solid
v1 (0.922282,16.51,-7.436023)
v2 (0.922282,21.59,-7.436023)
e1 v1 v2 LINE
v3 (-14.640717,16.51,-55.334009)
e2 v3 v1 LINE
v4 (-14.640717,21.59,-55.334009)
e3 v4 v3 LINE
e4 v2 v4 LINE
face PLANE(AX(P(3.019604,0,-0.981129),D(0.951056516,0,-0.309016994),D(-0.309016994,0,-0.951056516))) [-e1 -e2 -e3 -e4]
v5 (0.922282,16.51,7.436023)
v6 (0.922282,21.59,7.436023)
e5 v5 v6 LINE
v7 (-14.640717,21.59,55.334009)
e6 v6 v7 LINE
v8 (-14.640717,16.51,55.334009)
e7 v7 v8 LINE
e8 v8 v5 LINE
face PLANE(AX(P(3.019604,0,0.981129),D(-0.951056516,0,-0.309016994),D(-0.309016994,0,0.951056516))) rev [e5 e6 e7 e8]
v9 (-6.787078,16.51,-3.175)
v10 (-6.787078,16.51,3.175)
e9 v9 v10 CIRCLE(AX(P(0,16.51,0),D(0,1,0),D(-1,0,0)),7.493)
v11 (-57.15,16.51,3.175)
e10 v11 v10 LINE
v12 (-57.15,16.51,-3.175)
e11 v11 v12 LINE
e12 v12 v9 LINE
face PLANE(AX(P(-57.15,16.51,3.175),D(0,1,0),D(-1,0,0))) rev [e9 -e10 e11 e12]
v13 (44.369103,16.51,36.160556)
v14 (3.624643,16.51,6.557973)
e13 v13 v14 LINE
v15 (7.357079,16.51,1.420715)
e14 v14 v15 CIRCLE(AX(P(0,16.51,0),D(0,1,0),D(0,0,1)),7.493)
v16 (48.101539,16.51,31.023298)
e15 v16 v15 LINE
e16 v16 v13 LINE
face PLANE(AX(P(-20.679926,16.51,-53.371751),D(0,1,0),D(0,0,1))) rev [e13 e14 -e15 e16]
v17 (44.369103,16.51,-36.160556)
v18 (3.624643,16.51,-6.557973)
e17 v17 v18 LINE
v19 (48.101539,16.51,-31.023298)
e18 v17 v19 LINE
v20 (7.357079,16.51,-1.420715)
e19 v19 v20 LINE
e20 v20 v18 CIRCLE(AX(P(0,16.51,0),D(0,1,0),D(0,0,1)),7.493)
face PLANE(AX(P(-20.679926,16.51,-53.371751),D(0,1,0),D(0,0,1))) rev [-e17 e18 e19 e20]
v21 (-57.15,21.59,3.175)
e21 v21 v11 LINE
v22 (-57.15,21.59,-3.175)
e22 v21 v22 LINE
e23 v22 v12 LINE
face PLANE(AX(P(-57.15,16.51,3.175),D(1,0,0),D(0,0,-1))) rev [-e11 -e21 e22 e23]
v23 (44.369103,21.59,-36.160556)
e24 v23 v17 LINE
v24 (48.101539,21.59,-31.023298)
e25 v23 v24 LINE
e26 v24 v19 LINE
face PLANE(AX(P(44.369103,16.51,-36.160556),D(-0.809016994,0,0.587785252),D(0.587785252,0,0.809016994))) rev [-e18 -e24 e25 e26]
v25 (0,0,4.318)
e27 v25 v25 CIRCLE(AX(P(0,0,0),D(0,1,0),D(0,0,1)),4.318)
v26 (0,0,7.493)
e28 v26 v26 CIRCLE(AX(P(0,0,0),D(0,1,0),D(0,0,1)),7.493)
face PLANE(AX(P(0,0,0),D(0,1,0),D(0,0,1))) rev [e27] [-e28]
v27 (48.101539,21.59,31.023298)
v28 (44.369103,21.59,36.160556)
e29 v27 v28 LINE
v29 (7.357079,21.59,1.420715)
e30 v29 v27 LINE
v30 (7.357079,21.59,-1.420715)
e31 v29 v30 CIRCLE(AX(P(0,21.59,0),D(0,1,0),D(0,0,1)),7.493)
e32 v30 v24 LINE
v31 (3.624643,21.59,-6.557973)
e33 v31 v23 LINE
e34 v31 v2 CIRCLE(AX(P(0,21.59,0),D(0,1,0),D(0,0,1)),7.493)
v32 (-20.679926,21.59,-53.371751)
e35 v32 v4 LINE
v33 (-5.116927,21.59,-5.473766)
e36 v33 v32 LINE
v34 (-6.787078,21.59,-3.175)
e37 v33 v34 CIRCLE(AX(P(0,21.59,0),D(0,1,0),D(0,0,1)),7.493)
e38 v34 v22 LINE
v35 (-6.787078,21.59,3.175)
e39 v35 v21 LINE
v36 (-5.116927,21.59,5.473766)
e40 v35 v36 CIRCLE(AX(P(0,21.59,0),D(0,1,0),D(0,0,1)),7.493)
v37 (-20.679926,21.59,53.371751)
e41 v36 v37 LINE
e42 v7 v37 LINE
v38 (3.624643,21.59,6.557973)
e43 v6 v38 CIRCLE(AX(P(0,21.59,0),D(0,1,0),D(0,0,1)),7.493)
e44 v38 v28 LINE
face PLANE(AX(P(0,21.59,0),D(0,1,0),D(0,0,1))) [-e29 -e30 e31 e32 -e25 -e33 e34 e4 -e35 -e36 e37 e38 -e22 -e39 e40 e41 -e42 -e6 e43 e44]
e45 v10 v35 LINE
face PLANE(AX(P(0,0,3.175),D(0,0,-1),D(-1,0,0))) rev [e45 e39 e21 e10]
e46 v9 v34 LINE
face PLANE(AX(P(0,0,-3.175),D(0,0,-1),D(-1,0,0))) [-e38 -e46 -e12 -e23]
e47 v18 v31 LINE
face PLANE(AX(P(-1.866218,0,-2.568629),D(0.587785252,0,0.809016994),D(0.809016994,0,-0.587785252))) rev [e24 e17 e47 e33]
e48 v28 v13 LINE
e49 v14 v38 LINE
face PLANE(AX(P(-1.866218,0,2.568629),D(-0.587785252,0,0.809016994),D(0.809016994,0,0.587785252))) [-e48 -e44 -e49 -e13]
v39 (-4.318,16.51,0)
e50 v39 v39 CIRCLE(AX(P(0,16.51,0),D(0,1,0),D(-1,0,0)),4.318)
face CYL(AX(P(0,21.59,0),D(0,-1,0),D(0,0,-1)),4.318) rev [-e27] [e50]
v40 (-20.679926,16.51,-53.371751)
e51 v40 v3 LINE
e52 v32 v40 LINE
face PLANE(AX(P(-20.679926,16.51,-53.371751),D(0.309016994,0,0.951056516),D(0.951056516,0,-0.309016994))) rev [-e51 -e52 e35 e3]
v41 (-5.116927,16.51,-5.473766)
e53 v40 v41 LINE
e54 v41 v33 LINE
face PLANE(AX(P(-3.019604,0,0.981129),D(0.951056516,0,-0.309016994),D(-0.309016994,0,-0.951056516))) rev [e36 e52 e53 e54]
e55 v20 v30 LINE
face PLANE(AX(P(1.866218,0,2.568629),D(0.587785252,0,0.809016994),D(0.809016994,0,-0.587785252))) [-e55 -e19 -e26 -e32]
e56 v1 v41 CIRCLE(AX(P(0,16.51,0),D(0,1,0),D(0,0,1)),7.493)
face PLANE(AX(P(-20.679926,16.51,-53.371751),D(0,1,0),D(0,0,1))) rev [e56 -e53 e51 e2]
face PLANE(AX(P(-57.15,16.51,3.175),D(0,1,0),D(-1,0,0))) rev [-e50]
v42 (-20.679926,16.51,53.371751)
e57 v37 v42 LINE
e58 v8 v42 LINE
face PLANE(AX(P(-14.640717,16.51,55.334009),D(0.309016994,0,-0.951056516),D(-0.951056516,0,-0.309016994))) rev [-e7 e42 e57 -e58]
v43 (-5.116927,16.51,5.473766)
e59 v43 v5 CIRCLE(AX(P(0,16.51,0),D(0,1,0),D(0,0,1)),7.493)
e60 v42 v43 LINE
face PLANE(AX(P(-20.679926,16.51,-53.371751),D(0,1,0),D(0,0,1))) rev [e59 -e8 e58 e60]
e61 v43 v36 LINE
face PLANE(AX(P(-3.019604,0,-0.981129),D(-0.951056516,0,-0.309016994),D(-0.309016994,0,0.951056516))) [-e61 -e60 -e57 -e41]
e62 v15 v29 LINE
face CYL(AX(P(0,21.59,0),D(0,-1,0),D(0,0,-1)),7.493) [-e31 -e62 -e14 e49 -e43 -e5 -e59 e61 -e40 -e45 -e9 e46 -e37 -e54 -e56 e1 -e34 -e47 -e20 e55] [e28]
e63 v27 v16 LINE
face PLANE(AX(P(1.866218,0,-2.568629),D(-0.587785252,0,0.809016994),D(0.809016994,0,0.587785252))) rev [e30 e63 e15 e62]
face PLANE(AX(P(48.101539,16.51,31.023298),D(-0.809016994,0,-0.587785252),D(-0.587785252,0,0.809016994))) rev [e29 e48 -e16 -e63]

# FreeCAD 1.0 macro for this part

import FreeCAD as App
import Part
import Sketcher

V = App.Vector
Q = App.Units.Quantity

doc = App.newDocument("Part")
body = doc.addObject("PartDesign::Body", "Body")

sketch1 = body.newObject("Sketcher::SketchObject", "Sketch")
sketch1.AttachmentSupport = (doc.getObject("XZ_Plane"), [""])
sketch1.MapMode = "FlatFace"
sketch1.addGeometry([
    Part.Circle(V(0, 0, 0), V(0, 0, 1), 7.493),
    Part.Circle(V(0, 0, 0), V(0, 0, 1), 4.318),
], False)
sketch1.addConstraint([
    Sketcher.Constraint("Coincident", 0, 3, -1, 1),
    Sketcher.Constraint("Coincident", 1, 3, -1, 1),
    Sketcher.Constraint("Diameter", 0, Q("0.59 in")),
    Sketcher.Constraint("Diameter", 1, Q("0.34 in")),
])
pad1 = body.newObject("PartDesign::Pad", "Pad")
pad1.Profile = sketch1
pad1.Length = Q("0.85 in")
pad1.Reversed = True

sketch2 = body.newObject("Sketcher::SketchObject", "Sketch001")
sketch2.AttachmentSupport = (doc.getObject("XY_Plane"), [""])
sketch2.MapMode = "FlatFace"
sketch2.addGeometry([
    Part.LineSegment(V(-57.15, 21.59, 0), V(-57.15, 16.51, 0)),
    Part.LineSegment(V(-57.15, 16.51, 0), V(0, 16.51, 0)),
    Part.LineSegment(V(0, 16.51, 0), V(0, 21.59, 0)),
    Part.LineSegment(V(0, 21.59, 0), V(-57.15, 21.59, 0)),
], False)
sketch2.addConstraint([
    Sketcher.Constraint("Coincident", 0, 2, 1, 1),
    Sketcher.Constraint("Coincident", 1, 2, 2, 1),
    Sketcher.Constraint("Coincident", 2, 2, 3, 1),
    Sketcher.Constraint("Coincident", 3, 2, 0, 1),
    Sketcher.Constraint("Vertical", 0),
    Sketcher.Constraint("Horizontal", 1),
    Sketcher.Constraint("Vertical", 2),
    Sketcher.Constraint("Horizontal", 3),
    Sketcher.Constraint("PointOnObject", 1, 2, -2),
    Sketcher.Constraint("DistanceY", 0, 2, 0, 1, Q("0.2 in")),
    Sketcher.Constraint("DistanceX", 1, 1, 1, 2, Q("2.25 in")),
    Sketcher.Constraint("DistanceY", -1, 1, 0, 2, Q("0.65 in")),
])
pad2 = body.newObject("PartDesign::Pad", "Pad001")
pad2.Profile = sketch2
pad2.Length = Q("0.25 in")
pad2.Midplane = True
doc.recompute()

polarpattern = body.newObject("PartDesign::PolarPattern", "PolarPattern")
polarpattern.Originals = [pad2]
polarpattern.Axis = (doc.getObject("Y_Axis"), [""])
polarpattern.Angle = 360
polarpattern.Occurrences = 5
body.Tip = polarpattern

doc.recompute()
